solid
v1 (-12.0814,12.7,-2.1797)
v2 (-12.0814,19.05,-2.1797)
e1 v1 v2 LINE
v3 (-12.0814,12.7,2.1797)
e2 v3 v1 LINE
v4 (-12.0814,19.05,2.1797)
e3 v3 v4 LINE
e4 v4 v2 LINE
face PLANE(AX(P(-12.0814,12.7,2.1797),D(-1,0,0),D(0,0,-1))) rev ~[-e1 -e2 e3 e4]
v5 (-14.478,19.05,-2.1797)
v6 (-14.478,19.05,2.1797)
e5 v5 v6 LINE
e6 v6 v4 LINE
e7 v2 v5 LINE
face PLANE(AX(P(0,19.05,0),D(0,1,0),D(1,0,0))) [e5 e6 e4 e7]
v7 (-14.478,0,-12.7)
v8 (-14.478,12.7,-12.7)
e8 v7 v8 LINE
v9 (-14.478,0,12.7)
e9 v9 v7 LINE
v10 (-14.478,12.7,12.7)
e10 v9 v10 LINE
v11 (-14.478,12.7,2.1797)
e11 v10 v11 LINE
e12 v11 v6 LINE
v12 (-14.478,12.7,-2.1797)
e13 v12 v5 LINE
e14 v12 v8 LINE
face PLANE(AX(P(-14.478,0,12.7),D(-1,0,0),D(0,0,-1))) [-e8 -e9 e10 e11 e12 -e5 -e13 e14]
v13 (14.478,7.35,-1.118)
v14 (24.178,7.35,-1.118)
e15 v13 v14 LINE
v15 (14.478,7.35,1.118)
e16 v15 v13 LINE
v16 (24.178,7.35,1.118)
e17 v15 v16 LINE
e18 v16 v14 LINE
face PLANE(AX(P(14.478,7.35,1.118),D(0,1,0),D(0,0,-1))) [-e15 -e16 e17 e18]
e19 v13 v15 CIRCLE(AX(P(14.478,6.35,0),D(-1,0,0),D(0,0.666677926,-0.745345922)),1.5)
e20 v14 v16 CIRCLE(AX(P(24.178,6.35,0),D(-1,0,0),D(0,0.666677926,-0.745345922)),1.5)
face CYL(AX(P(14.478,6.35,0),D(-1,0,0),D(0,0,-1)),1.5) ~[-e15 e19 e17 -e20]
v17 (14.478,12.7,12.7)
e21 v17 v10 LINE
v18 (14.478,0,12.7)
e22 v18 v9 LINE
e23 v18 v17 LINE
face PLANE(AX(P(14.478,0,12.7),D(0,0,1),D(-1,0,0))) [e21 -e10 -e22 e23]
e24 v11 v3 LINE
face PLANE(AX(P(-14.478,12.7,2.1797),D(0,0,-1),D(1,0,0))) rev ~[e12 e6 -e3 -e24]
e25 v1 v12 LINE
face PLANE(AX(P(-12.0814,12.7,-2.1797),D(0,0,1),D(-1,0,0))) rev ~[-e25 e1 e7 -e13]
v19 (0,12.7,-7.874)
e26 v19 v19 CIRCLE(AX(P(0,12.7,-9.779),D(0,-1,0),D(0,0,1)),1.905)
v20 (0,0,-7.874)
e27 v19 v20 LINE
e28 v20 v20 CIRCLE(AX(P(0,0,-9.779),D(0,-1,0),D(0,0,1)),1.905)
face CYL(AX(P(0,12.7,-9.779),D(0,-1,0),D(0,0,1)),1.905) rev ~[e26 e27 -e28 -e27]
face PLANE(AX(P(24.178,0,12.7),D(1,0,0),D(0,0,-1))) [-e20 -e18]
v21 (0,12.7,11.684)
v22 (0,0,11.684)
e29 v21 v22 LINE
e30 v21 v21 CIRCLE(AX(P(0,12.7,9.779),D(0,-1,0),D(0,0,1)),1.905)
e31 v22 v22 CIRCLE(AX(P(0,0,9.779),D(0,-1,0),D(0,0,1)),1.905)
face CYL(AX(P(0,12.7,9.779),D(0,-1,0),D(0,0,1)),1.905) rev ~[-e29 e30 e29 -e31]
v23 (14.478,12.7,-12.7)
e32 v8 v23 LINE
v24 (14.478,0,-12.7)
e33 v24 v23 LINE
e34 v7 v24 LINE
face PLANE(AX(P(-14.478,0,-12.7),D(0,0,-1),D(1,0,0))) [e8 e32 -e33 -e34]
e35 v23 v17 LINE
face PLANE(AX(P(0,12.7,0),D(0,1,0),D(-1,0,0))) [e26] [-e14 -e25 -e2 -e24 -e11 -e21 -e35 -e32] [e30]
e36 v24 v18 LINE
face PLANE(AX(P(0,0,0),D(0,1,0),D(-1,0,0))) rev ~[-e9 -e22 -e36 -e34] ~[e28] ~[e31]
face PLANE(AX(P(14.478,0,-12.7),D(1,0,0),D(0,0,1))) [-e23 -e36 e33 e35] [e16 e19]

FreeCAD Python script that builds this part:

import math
import FreeCAD as App
import Part
import Sketcher
from FreeCAD import Vector
Q = App.Units.Quantity


def add_polygon(sketch, points):
    """Adds a closed chain of lines whose ends are joined by coincident constraints."""
    first, n = sketch.GeometryCount, len(points)
    for a, b in zip(points, points[1:] + points[:1]):
        sketch.addGeometry(Part.LineSegment(App.Vector(*a, 0), App.Vector(*b, 0)), False)
    for i in range(n):
        sketch.addConstraint(Sketcher.Constraint("Coincident", first + i, 2, first + (i + 1) % n, 1))

doc = App.newDocument("Part")
body = doc.addObject("PartDesign::Body", "Body")

# Sketch on XZ plane
sketch1 = body.newObject("Sketcher::SketchObject", "Sketch")
sketch1.AttachmentSupport = (doc.getObject("XZ_Plane"), [""])
sketch1.MapMode = "FlatFace"
add_polygon(sketch1, [(-14, 13), (14, 13), (14, -13), (-14, -13)])  # lines 0-3
sketch1.addConstraint([
    Sketcher.Constraint("Horizontal", 0),
    Sketcher.Constraint("Vertical", 1),
    Sketcher.Constraint("Horizontal", 2),
    Sketcher.Constraint("Vertical", 3),
    Sketcher.Constraint("Symmetric", 0, 2, 2, 2, -1, 1),
    Sketcher.Constraint("DistanceY", 1, 2, 1, 1, Q("1 in")),
    Sketcher.Constraint("DistanceX", 0, 1, 0, 2, Q("1.14 in")),
])
pad1 = body.newObject("PartDesign::Pad", "Pad")
pad1.Profile = sketch1
pad1.Length = Q("0.5 in")
pad1.Reversed = True

# Sketch on XZ plane
sketch2 = body.newObject("Sketcher::SketchObject", "Sketch001")
sketch2.AttachmentSupport = (doc.getObject("XZ_Plane"), [""])
sketch2.MapMode = "FlatFace"
sketch2.AttachmentOffset = App.Placement(Vector(0, 0, -0.5 * 25.4), App.Rotation())
sketch2.addGeometry([
    Part.Circle(Vector(0, 9.8, 0), Vector(0, 0, 1), 1.9),
    Part.Circle(Vector(0, -9.8, 0), Vector(0, 0, 1), 1.9),
], False)
sketch2.addConstraint([
    Sketcher.Constraint("Equal", 0, 1),
    Sketcher.Constraint("Symmetric", 0, 3, 1, 3, -1, 1),
    Sketcher.Constraint("PointOnObject", 0, 3, -2),
    Sketcher.Constraint("Diameter", 0, Q("0.15 in")),
    Sketcher.Constraint("DistanceY", 1, 3, 0, 3, Q("0.77 in")),
])
doc.recompute()
hole = body.newObject("PartDesign::Hole", "Hole")
hole.Profile = sketch2
hole.ThreadType = "None"
hole.Diameter = Q("0.15 in")
hole.DepthType = "ThroughAll"
hole.Reversed = True

# Sketch on YZ plane
sketch3 = body.newObject("Sketcher::SketchObject", "Sketch002")
sketch3.AttachmentSupport = (doc.getObject("YZ_Plane"), [""])
sketch3.MapMode = "FlatFace"
sketch3.AttachmentOffset = App.Placement(Vector(0, 0, 0.57 * 25.4), App.Rotation())
sketch3.addGeometry([
    Part.ArcOfCircle(Part.Circle(Vector(6.3, 0, 0), Vector(0, 0, 1), 1.5), math.radians(48), math.radians(312)),
    Part.LineSegment(Vector(7.3, 1.1, 0), Vector(7.3, -1.1, 0)),
], False)
sketch3.addConstraint([
    Sketcher.Constraint("Coincident", 0, 1, 1, 1),
    Sketcher.Constraint("Coincident", 1, 2, 0, 2),
    Sketcher.Constraint("Vertical", 1),
    Sketcher.Constraint("PointOnObject", 0, 3, -1),
    Sketcher.Constraint("DistanceX", -1, 1, 0, 3, Q("0.25 in")),
    Sketcher.Constraint("Radius", 0, 1.5),
    Sketcher.Constraint("DistanceX", 0, 3, 0, 1, 1.0),
])
pad2 = body.newObject("PartDesign::Pad", "Pad001")
pad2.Profile = sketch3
pad2.Length = Q("0.3818898 in")

# Sketch on XZ plane
sketch4 = body.newObject("Sketcher::SketchObject", "Sketch003")
sketch4.AttachmentSupport = (doc.getObject("XZ_Plane"), [""])
sketch4.MapMode = "FlatFace"
sketch4.AttachmentOffset = App.Placement(Vector(0, 0, -0.5 * 25.4), App.Rotation())
add_polygon(sketch4, [(-14.5, -2.2), (-14.5, 2.2), (-12.1, 2.2), (-12.1, -2.2)])  # lines 0-3
sketch4.addConstraint([
    Sketcher.Constraint("Vertical", 0),
    Sketcher.Constraint("Horizontal", 1),
    Sketcher.Constraint("Vertical", 2),
    Sketcher.Constraint("Horizontal", 3),
    Sketcher.Constraint("DistanceX", 0, 2, -1, 1, Q("0.57 in")),
    Sketcher.Constraint("DistanceX", 1, 1, 1, 2, 2.3966),
    Sketcher.Constraint("DistanceY", 0, 1, 0, 2, 4.3594),
    Sketcher.Constraint("DistanceY", -1, 1, 0, 2, 2.1797),
])
pad3 = body.newObject("PartDesign::Pad", "Pad002")
pad3.Profile = sketch4
pad3.Length = Q("0.25 in")
pad3.Reversed = True

doc.recompute()
